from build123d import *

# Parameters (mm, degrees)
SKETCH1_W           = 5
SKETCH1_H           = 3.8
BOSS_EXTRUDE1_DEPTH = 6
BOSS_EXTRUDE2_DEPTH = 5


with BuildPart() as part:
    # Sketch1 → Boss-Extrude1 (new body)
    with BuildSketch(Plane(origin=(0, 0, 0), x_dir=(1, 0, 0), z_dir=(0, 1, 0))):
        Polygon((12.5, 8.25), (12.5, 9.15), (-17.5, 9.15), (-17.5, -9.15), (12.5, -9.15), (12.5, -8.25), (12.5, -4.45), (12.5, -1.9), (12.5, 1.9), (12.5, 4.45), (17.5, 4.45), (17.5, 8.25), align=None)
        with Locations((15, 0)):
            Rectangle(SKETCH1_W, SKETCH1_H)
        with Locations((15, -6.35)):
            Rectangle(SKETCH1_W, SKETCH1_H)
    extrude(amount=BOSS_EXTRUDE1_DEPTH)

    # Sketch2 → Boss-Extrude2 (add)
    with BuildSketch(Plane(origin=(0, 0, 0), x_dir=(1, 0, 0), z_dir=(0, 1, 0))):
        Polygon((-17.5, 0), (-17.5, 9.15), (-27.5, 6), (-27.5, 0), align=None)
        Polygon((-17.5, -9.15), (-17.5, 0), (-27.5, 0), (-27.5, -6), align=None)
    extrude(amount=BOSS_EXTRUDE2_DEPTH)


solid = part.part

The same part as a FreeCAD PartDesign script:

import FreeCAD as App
import Part
import Sketcher

V = App.Vector
Q = App.Units.Quantity

doc = App.newDocument("Part")
body = doc.addObject("PartDesign::Body", "Body")

# Sketch on XZ plane
sketch1 = doc.addObject("Sketcher::SketchObject", "Sketch")
body.addObject(sketch1)
sketch1.AttachmentSupport = (doc.XZ_Plane, [""])
sketch1.MapMode = "FlatFace"
sketch1.addGeometry(Part.LineSegment(V(12.5, -8.2, 0), V(12.5, -9.2, 0)), False)
sketch1.addGeometry(Part.LineSegment(V(12.5, -9.2, 0), V(-17.5, -9.2, 0)), False)
sketch1.addGeometry(Part.LineSegment(V(-17.5, -9.2, 0), V(-17.5, 9.2, 0)), False)
sketch1.addGeometry(Part.LineSegment(V(-17.5, 9.2, 0), V(12.5, 9.2, 0)), False)
sketch1.addGeometry(Part.LineSegment(V(12.5, 9.2, 0), V(12.5, 8.2, 0)), False)
sketch1.addGeometry(Part.LineSegment(V(12.5, 8.2, 0), V(17.5, 8.2, 0)), False)
sketch1.addGeometry(Part.LineSegment(V(17.5, 8.2, 0), V(17.5, 4.5, 0)), False)
sketch1.addGeometry(Part.LineSegment(V(17.5, 4.5, 0), V(12.5, 4.5, 0)), False)
sketch1.addGeometry(Part.LineSegment(V(12.5, 4.5, 0), V(12.5, 1.9, 0)), False)
sketch1.addGeometry(Part.LineSegment(V(12.5, 1.9, 0), V(17.5, 1.9, 0)), False)
sketch1.addGeometry(Part.LineSegment(V(17.5, 1.9, 0), V(17.5, -1.9, 0)), False)
sketch1.addGeometry(Part.LineSegment(V(17.5, -1.9, 0), V(12.5, -1.9, 0)), False)
sketch1.addGeometry(Part.LineSegment(V(12.5, -1.9, 0), V(12.5, -4.5, 0)), False)
sketch1.addGeometry(Part.LineSegment(V(12.5, -4.5, 0), V(17.5, -4.5, 0)), False)
sketch1.addGeometry(Part.LineSegment(V(17.5, -4.5, 0), V(17.5, -8.2, 0)), False)
sketch1.addGeometry(Part.LineSegment(V(17.5, -8.2, 0), V(12.5, -8.2, 0)), False)
sketch1.addConstraint(Sketcher.Constraint("Coincident", 0, 2, 1, 1))
sketch1.addConstraint(Sketcher.Constraint("Coincident", 1, 2, 2, 1))
sketch1.addConstraint(Sketcher.Constraint("Coincident", 2, 2, 3, 1))
sketch1.addConstraint(Sketcher.Constraint("Coincident", 3, 2, 4, 1))
sketch1.addConstraint(Sketcher.Constraint("Coincident", 4, 2, 5, 1))
sketch1.addConstraint(Sketcher.Constraint("Coincident", 5, 2, 6, 1))
sketch1.addConstraint(Sketcher.Constraint("Coincident", 6, 2, 7, 1))
sketch1.addConstraint(Sketcher.Constraint("Coincident", 7, 2, 8, 1))
sketch1.addConstraint(Sketcher.Constraint("Coincident", 8, 2, 9, 1))
sketch1.addConstraint(Sketcher.Constraint("Coincident", 9, 2, 10, 1))
sketch1.addConstraint(Sketcher.Constraint("Coincident", 10, 2, 11, 1))
sketch1.addConstraint(Sketcher.Constraint("Coincident", 11, 2, 12, 1))
sketch1.addConstraint(Sketcher.Constraint("Coincident", 12, 2, 13, 1))
sketch1.addConstraint(Sketcher.Constraint("Coincident", 13, 2, 14, 1))
sketch1.addConstraint(Sketcher.Constraint("Coincident", 14, 2, 15, 1))
sketch1.addConstraint(Sketcher.Constraint("Coincident", 15, 2, 0, 1))
sketch1.addConstraint(Sketcher.Constraint("Vertical", 0))
sketch1.addConstraint(Sketcher.Constraint("Horizontal", 1))
sketch1.addConstraint(Sketcher.Constraint("Vertical", 2))
sketch1.addConstraint(Sketcher.Constraint("Horizontal", 3))
sketch1.addConstraint(Sketcher.Constraint("Vertical", 4))
sketch1.addConstraint(Sketcher.Constraint("Horizontal", 5))
sketch1.addConstraint(Sketcher.Constraint("Vertical", 6))
sketch1.addConstraint(Sketcher.Constraint("Horizontal", 7))
sketch1.addConstraint(Sketcher.Constraint("Vertical", 8))
sketch1.addConstraint(Sketcher.Constraint("Horizontal", 9))
sketch1.addConstraint(Sketcher.Constraint("Vertical", 10))
sketch1.addConstraint(Sketcher.Constraint("Horizontal", 11))
sketch1.addConstraint(Sketcher.Constraint("Vertical", 12))
sketch1.addConstraint(Sketcher.Constraint("Horizontal", 13))
sketch1.addConstraint(Sketcher.Constraint("Vertical", 14))
sketch1.addConstraint(Sketcher.Constraint("Horizontal", 15))
sketch1.addConstraint(Sketcher.Constraint("Symmetric", 0, 2, 3, 2, -1))
sketch1.addConstraint(Sketcher.Constraint("Symmetric", 8, 2, 11, 2, -1))
sketch1.addConstraint(Sketcher.Constraint("Symmetric", 6, 2, 13, 2, -1))
sketch1.addConstraint(Sketcher.Constraint("Vertical", 4, 2, 7, 2))
sketch1.addConstraint(Sketcher.Constraint("Vertical", 6, 2, 9, 2))
sketch1.addConstraint(Sketcher.Constraint("Equal", 0, 4))
sketch1.addConstraint(Sketcher.Constraint("Equal", 6, 10))
sketch1.addConstraint(Sketcher.Constraint("DistanceX", 1, 2, 1, 1, Q("30 mm")))
sketch1.addConstraint(Sketcher.Constraint("DistanceX", 5, 1, 5, 2, Q("5 mm")))
sketch1.addConstraint(Sketcher.Constraint("DistanceY", 0, 2, 0, 1, Q("0.9 mm")))
sketch1.addConstraint(Sketcher.Constraint("DistanceY", 2, 1, 2, 2, Q("18.3 mm")))
sketch1.addConstraint(Sketcher.Constraint("DistanceY", 6, 2, 6, 1, Q("3.8 mm")))
sketch1.addConstraint(Sketcher.Constraint("DistanceX", -1, 1, 0, 2, Q("12.5 mm")))
pad1 = doc.addObject("PartDesign::Pad", "Pad")
body.addObject(pad1)
pad1.Profile = sketch1
pad1.Length = 6
pad1.Reversed = True

# Sketch on XZ plane
sketch2 = doc.addObject("Sketcher::SketchObject", "Sketch001")
body.addObject(sketch2)
sketch2.AttachmentSupport = (doc.XZ_Plane, [""])
sketch2.MapMode = "FlatFace"
sketch2.addGeometry(Part.LineSegment(V(-18, -9, 0), V(-28, -6, 0)), False)
sketch2.addGeometry(Part.LineSegment(V(-28, -6, 0), V(-28, 6, 0)), False)
sketch2.addGeometry(Part.LineSegment(V(-28, 6, 0), V(-18, 9, 0)), False)
sketch2.addGeometry(Part.LineSegment(V(-18, 9, 0), V(-18, -9, 0)), False)
sketch2.addConstraint(Sketcher.Constraint("Coincident", 0, 2, 1, 1))
sketch2.addConstraint(Sketcher.Constraint("Coincident", 1, 2, 2, 1))
sketch2.addConstraint(Sketcher.Constraint("Coincident", 2, 2, 3, 1))
sketch2.addConstraint(Sketcher.Constraint("Coincident", 3, 2, 0, 1))
sketch2.addConstraint(Sketcher.Constraint("Vertical", 1))
sketch2.addConstraint(Sketcher.Constraint("Vertical", 3))
sketch2.addConstraint(Sketcher.Constraint("Equal", 0, 2))
sketch2.addConstraint(Sketcher.Constraint("DistanceY", 1, 1, 1, 2, Q("12 mm")))
sketch2.addConstraint(Sketcher.Constraint("DistanceY", 3, 2, 3, 1, Q("18.3 mm")))
sketch2.addConstraint(Sketcher.Constraint("DistanceY", 0, 2, -1, 1, Q("6 mm")))
sketch2.addConstraint(Sketcher.Constraint("DistanceX", 1, 2, 2, 2, Q("10 mm")))
sketch2.addConstraint(Sketcher.Constraint("DistanceX", 0, 2, -1, 1, Q("27.5 mm")))
pad2 = doc.addObject("PartDesign::Pad", "Pad001")
body.addObject(pad2)
pad2.Profile = sketch2
pad2.Length = 5
pad2.Reversed = True

doc.recompute()
